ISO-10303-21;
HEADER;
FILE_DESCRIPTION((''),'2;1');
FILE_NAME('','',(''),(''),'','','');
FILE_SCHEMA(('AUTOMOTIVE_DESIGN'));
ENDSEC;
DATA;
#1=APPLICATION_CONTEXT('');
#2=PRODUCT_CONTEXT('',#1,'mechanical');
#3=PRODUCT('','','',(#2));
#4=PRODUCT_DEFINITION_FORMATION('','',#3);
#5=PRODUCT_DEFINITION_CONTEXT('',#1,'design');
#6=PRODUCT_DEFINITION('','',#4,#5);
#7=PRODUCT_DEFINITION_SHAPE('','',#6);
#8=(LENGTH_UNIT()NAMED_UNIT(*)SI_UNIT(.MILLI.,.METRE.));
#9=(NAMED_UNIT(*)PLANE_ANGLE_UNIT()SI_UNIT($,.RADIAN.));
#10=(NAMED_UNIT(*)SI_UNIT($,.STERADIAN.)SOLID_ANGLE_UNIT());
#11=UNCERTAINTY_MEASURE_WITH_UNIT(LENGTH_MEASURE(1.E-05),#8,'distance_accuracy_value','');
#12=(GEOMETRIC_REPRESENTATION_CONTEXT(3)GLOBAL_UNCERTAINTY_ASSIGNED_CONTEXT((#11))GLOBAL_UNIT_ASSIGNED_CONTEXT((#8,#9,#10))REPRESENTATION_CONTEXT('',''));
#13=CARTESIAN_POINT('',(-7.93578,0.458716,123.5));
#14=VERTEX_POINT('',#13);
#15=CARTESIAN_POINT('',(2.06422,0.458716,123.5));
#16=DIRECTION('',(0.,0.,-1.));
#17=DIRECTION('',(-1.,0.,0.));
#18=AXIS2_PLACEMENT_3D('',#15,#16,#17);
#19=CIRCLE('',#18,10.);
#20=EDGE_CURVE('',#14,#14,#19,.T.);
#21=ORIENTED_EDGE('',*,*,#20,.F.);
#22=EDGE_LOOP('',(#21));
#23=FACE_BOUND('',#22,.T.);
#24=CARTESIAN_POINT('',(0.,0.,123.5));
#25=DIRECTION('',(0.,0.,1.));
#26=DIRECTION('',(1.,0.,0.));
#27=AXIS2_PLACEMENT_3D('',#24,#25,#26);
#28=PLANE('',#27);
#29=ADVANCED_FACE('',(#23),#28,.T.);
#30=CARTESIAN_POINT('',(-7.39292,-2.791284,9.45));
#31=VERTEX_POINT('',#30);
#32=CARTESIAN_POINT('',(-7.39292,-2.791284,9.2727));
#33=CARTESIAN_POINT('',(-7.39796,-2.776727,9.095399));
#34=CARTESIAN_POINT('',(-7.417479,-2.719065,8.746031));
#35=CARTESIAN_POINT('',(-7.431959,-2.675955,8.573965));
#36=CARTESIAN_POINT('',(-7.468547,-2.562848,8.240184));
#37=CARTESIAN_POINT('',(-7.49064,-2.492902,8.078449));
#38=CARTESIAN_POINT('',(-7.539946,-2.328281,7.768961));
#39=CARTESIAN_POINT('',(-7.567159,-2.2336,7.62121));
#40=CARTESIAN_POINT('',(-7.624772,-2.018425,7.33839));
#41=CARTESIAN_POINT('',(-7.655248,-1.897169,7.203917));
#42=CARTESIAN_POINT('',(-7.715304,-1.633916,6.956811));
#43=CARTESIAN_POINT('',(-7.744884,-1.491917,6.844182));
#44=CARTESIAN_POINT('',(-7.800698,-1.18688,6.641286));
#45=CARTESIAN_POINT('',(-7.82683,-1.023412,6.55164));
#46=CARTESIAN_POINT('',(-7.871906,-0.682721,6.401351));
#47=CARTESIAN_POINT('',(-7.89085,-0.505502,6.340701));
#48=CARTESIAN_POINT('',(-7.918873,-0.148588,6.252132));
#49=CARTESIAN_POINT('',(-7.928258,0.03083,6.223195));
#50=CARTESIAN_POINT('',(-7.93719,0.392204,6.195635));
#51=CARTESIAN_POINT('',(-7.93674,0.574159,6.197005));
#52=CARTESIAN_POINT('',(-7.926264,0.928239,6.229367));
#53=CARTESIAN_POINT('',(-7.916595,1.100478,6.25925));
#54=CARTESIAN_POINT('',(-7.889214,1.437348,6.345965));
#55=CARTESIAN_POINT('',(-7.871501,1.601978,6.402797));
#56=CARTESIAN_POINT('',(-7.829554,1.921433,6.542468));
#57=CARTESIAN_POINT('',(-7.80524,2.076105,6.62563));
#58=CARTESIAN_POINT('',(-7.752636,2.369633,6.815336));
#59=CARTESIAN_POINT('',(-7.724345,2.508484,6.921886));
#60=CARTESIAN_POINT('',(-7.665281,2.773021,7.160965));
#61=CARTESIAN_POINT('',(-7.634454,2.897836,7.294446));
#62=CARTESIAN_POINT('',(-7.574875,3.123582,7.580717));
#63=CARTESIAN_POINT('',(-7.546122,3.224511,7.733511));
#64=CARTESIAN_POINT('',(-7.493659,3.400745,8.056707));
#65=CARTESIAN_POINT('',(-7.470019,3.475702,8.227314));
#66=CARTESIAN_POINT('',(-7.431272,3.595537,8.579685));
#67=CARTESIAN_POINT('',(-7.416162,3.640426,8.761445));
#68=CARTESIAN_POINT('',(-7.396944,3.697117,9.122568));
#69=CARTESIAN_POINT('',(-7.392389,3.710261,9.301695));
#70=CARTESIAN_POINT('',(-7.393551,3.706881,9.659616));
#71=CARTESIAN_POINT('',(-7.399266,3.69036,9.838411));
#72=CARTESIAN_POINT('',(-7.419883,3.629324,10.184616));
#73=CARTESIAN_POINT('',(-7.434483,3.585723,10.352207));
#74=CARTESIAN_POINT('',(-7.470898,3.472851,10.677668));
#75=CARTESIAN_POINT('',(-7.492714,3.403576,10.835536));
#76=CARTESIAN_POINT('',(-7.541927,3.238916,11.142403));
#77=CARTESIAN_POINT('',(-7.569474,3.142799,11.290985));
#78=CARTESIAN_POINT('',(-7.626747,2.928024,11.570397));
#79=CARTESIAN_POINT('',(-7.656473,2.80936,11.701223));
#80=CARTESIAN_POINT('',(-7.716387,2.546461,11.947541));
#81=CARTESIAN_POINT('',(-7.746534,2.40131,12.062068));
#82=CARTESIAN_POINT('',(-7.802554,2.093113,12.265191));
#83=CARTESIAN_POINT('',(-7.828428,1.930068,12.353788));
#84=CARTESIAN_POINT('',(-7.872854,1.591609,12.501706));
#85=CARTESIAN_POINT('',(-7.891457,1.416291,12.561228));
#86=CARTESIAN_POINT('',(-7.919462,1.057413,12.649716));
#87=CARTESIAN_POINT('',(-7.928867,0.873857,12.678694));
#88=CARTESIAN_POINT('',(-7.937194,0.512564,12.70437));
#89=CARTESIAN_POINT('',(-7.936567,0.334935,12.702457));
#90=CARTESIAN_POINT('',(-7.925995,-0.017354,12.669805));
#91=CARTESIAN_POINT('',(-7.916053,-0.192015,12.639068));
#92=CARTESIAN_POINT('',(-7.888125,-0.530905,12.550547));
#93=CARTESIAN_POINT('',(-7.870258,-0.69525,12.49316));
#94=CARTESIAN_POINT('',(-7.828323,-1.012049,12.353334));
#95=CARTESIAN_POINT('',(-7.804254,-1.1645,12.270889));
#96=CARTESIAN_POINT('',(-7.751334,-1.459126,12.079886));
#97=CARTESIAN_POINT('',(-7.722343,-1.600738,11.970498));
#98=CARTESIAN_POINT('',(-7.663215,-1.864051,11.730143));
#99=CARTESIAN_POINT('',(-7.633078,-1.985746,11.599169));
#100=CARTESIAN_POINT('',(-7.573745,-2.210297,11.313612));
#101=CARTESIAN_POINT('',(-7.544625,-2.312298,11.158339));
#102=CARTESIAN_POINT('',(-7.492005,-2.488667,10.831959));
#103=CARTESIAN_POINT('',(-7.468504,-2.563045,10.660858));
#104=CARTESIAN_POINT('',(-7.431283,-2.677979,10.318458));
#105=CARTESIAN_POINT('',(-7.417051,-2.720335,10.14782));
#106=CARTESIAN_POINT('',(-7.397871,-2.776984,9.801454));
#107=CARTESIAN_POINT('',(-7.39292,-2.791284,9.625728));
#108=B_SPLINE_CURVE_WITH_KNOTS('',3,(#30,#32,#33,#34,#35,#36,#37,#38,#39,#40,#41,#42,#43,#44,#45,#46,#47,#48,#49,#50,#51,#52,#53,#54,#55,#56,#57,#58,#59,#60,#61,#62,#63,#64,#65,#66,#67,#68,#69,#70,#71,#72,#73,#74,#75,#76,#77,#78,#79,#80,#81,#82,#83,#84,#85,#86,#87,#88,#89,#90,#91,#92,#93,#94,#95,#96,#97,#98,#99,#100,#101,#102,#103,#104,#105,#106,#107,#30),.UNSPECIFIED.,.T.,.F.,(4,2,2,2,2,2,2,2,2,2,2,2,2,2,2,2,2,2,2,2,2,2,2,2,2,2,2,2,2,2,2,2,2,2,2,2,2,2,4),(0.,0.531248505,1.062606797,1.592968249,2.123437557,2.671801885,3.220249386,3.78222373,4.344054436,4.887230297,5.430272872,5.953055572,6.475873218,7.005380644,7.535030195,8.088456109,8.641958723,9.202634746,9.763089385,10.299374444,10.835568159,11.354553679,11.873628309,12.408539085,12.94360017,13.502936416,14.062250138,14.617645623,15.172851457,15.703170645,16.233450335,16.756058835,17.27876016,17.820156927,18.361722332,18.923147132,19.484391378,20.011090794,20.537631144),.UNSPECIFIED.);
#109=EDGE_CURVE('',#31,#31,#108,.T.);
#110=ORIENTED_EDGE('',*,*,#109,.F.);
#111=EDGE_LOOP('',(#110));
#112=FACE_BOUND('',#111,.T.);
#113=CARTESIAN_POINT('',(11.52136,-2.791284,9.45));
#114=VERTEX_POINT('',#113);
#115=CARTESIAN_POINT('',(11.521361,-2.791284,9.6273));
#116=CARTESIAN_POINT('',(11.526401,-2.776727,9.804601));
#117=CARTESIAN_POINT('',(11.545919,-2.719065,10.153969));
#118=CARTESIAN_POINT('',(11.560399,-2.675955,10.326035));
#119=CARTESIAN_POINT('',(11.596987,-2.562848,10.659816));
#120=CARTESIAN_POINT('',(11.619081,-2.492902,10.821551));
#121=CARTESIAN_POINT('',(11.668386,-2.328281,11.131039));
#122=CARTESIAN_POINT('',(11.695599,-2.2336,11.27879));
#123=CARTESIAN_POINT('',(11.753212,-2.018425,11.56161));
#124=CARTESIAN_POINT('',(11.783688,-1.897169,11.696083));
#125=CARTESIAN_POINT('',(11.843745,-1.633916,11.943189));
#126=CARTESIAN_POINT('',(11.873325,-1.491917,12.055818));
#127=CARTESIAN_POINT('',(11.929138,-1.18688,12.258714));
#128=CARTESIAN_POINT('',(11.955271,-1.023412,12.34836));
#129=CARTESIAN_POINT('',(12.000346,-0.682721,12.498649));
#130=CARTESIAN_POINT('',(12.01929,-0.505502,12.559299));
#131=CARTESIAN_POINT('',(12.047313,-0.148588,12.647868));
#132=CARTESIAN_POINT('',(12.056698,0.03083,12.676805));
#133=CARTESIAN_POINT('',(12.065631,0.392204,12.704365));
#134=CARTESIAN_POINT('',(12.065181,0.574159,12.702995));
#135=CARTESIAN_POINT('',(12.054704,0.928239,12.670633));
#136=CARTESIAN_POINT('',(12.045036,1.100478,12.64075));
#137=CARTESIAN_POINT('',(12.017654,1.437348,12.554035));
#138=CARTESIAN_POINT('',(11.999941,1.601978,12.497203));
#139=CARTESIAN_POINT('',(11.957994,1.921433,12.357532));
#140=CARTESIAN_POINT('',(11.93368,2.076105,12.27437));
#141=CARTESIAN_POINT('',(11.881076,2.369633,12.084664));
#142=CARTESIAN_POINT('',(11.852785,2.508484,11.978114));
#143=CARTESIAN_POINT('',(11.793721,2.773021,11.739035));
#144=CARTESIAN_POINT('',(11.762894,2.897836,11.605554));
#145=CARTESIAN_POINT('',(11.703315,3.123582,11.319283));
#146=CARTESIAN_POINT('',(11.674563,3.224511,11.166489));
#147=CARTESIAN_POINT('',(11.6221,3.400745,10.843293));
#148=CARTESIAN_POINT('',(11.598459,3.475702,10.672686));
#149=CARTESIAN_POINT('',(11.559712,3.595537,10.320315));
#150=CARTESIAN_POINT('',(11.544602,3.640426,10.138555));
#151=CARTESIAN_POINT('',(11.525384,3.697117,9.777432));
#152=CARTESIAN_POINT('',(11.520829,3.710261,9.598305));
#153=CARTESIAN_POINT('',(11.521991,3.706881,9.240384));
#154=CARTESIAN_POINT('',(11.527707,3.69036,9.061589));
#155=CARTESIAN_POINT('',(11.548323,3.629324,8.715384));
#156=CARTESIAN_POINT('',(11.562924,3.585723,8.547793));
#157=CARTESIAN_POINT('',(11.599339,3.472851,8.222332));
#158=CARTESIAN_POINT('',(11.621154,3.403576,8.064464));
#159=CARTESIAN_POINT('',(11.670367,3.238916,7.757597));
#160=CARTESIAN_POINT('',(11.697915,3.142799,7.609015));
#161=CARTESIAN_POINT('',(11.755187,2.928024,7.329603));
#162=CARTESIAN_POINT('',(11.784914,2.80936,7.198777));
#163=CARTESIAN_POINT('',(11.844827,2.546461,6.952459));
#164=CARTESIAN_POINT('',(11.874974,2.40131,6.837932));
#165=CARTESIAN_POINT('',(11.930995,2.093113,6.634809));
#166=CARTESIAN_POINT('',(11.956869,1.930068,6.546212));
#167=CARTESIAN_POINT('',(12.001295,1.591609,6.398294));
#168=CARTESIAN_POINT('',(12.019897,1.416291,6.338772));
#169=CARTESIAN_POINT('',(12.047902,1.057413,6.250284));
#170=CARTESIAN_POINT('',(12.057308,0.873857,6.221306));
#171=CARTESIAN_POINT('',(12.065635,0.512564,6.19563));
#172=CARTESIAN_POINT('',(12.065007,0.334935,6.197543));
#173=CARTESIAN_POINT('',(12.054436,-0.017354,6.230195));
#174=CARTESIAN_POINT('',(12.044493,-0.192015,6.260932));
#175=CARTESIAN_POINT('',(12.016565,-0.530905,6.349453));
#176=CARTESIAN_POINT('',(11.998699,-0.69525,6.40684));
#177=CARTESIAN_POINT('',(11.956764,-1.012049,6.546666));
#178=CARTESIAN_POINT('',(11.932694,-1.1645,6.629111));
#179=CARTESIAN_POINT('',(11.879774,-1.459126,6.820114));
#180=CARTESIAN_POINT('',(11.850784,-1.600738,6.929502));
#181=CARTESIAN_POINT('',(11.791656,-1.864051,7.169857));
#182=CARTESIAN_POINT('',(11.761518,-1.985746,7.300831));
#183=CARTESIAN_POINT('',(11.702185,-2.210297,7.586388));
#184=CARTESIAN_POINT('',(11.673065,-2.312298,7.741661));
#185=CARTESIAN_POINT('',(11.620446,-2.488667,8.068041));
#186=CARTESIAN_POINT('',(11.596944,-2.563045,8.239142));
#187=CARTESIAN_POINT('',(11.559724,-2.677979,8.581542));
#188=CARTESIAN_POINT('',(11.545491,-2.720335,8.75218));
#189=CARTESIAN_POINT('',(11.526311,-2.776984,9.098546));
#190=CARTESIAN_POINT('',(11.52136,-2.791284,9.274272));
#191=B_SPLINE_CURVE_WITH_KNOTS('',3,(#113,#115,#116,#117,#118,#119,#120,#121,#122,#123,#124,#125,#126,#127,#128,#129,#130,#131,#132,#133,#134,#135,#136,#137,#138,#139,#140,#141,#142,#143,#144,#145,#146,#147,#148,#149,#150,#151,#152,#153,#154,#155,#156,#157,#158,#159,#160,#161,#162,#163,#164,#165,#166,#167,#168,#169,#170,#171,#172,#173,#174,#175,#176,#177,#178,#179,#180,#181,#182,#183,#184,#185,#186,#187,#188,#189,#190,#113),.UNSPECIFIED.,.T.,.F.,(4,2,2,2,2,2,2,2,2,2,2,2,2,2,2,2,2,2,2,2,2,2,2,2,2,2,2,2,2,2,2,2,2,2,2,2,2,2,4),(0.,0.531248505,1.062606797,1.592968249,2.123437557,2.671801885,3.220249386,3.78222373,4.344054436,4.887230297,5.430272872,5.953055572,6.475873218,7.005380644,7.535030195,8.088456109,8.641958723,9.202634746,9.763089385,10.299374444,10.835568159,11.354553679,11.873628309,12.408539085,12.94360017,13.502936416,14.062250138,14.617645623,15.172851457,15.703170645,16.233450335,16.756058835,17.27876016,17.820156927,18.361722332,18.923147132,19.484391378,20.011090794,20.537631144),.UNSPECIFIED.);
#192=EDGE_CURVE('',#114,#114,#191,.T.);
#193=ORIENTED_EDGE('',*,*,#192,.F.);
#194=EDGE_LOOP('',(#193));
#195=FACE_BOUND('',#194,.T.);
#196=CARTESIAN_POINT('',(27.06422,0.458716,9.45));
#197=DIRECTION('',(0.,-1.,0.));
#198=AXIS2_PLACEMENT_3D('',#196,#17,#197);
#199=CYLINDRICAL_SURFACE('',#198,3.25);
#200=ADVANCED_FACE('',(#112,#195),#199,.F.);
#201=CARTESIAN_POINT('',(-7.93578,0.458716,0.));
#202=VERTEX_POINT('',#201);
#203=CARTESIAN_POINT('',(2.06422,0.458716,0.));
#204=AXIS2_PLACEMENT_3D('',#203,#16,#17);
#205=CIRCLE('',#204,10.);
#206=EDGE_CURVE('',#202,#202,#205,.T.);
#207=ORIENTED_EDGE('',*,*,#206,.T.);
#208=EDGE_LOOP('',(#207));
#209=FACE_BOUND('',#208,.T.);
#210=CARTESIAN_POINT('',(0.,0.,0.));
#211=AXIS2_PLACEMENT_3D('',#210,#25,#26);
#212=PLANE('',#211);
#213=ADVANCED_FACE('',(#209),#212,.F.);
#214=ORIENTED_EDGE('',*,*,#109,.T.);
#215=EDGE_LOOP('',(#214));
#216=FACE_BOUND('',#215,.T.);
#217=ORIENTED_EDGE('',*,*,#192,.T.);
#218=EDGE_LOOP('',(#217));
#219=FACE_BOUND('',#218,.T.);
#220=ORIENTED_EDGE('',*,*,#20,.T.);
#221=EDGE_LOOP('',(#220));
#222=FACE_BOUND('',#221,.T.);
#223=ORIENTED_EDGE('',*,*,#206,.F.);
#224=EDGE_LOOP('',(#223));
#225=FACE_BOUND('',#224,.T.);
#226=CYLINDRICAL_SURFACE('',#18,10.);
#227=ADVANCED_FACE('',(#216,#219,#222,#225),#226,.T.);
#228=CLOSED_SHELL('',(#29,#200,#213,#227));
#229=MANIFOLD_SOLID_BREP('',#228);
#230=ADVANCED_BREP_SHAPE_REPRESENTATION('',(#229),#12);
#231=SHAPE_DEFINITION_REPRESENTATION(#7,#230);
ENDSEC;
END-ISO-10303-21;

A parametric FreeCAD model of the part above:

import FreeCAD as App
import Part
import Sketcher

V = App.Vector


def add_polygon(sketch, points):
    """Adds a closed chain of lines whose ends are joined by coincident constraints."""
    first, n = sketch.GeometryCount, len(points)
    for a, b in zip(points, points[1:] + points[:1]):
        sketch.addGeometry(Part.LineSegment(App.Vector(*a, 0), App.Vector(*b, 0)), False)
    for i in range(n):
        sketch.addConstraint(Sketcher.Constraint("Coincident", first + i, 2, first + (i + 1) % n, 1))

doc = App.newDocument("Part")
params = doc.addObject("Spreadsheet::Sheet", "Params")
for row, (alias, value) in enumerate([
    ("sketch1_width", "50 mm"),
    ("pad1_length", "123.5 mm"),
    ("sketch2_diameter", "6.5 mm"),
    ("pocket1_length", "50 mm"),
    ("sketch3_diameter", "20 mm"),
    ("pocket2_length", "123.5 mm"),
], start=1):
    params.set(f"A{row}", alias)
    params.set(f"B{row}", "=" + value)
    params.setAlias(f"B{row}", alias)

body = doc.addObject("PartDesign::Body", "Body")

# Sketch on XY plane
sketch1 = body.newObject("Sketcher::SketchObject", "Sketch")
sketch1.AttachmentSupport = (doc.getObject("XY_Plane"), [""])
sketch1.MapMode = "FlatFace"
add_polygon(sketch1, [(-22.93578, 25.458716), (-22.93578, -24.541284), (27.06422, -24.541284), (27.06422, 25.458716)])  # lines 0-3
sketch1.addConstraint([
    Sketcher.Constraint("Vertical", 0),
    Sketcher.Constraint("Horizontal", 1),
    Sketcher.Constraint("Vertical", 2),
    Sketcher.Constraint("Horizontal", 3),
    Sketcher.Constraint("Equal", 3, 0),
    Sketcher.Constraint("DistanceX", 1, 1, 1, 2, 50.0),
    Sketcher.Constraint("DistanceX", 0, 2, -1, 1, 22.93578),
    Sketcher.Constraint("DistanceY", 0, 2, -1, 1, 24.541284),
])
sketch1.setExpression("Constraints[9]", "Params.sketch1_width")
pad1 = body.newObject("PartDesign::Pad", "Pad")
pad1.Profile = sketch1
pad1.setExpression("Length", "Params.pad1_length")

# Sketch on YZ plane
sketch2 = body.newObject("Sketcher::SketchObject", "Sketch001")
sketch2.AttachmentSupport = (doc.getObject("YZ_Plane"), [""])
sketch2.MapMode = "FlatFace"
sketch2.AttachmentOffset = App.Placement(V(0, 0, -22.93578), App.Rotation())
sketch2.addGeometry(Part.Circle(V(0.458716, 9.45, 0), V(0, 0, 1), 3.25), False)
sketch2.addConstraint([
    Sketcher.Constraint("Diameter", 0, 6.5),
    Sketcher.Constraint("DistanceY", -1, 1, 0, 3, 9.45),
    Sketcher.Constraint("DistanceX", -1, 1, 0, 3, 0.458716),
])
sketch2.setExpression("Constraints[0]", "Params.sketch2_diameter")
pocket1 = body.newObject("PartDesign::Pocket", "Pocket")
pocket1.Profile = sketch2
pocket1.setExpression("Length", "Params.pocket1_length")
pocket1.Reversed = True

# Sketch on XY plane
sketch3 = body.newObject("Sketcher::SketchObject", "Sketch002")
sketch3.AttachmentSupport = (doc.getObject("XY_Plane"), [""])
sketch3.MapMode = "FlatFace"
add_polygon(sketch3, [(42.295, 40.69), (42.295, -39.772), (-38.167, -39.772), (-38.167, 40.69)])  # lines 0-3
sketch3.addGeometry(Part.Circle(V(2.06422, 0.458716, 0), V(0, 0, 1), 10), False)  # 4
sketch3.addConstraint([
    Sketcher.Constraint("Vertical", 0),
    Sketcher.Constraint("Horizontal", 1),
    Sketcher.Constraint("Vertical", 2),
    Sketcher.Constraint("Horizontal", 3),
    Sketcher.Constraint("Equal", 3, 0),
    Sketcher.Constraint("Diameter", 4, 20.0),
    Sketcher.Constraint("DistanceX", 1, 2, 1, 1, 80.462),
    Sketcher.Constraint("DistanceY", -1, 1, 2, 2, 40.69),
    Sketcher.Constraint("DistanceX", -1, 1, 0, 2, 42.295),
    Sketcher.Constraint("DistanceX", -1, 1, 4, 3, 2.06422),
    Sketcher.Constraint("DistanceY", -1, 1, 4, 3, 0.458716),
])
sketch3.setExpression("Constraints[9]", "Params.sketch3_diameter")
pocket2 = body.newObject("PartDesign::Pocket", "Pocket001")
pocket2.Profile = sketch3
pocket2.setExpression("Length", "Params.pocket2_length")
pocket2.Reversed = True

doc.recompute()
